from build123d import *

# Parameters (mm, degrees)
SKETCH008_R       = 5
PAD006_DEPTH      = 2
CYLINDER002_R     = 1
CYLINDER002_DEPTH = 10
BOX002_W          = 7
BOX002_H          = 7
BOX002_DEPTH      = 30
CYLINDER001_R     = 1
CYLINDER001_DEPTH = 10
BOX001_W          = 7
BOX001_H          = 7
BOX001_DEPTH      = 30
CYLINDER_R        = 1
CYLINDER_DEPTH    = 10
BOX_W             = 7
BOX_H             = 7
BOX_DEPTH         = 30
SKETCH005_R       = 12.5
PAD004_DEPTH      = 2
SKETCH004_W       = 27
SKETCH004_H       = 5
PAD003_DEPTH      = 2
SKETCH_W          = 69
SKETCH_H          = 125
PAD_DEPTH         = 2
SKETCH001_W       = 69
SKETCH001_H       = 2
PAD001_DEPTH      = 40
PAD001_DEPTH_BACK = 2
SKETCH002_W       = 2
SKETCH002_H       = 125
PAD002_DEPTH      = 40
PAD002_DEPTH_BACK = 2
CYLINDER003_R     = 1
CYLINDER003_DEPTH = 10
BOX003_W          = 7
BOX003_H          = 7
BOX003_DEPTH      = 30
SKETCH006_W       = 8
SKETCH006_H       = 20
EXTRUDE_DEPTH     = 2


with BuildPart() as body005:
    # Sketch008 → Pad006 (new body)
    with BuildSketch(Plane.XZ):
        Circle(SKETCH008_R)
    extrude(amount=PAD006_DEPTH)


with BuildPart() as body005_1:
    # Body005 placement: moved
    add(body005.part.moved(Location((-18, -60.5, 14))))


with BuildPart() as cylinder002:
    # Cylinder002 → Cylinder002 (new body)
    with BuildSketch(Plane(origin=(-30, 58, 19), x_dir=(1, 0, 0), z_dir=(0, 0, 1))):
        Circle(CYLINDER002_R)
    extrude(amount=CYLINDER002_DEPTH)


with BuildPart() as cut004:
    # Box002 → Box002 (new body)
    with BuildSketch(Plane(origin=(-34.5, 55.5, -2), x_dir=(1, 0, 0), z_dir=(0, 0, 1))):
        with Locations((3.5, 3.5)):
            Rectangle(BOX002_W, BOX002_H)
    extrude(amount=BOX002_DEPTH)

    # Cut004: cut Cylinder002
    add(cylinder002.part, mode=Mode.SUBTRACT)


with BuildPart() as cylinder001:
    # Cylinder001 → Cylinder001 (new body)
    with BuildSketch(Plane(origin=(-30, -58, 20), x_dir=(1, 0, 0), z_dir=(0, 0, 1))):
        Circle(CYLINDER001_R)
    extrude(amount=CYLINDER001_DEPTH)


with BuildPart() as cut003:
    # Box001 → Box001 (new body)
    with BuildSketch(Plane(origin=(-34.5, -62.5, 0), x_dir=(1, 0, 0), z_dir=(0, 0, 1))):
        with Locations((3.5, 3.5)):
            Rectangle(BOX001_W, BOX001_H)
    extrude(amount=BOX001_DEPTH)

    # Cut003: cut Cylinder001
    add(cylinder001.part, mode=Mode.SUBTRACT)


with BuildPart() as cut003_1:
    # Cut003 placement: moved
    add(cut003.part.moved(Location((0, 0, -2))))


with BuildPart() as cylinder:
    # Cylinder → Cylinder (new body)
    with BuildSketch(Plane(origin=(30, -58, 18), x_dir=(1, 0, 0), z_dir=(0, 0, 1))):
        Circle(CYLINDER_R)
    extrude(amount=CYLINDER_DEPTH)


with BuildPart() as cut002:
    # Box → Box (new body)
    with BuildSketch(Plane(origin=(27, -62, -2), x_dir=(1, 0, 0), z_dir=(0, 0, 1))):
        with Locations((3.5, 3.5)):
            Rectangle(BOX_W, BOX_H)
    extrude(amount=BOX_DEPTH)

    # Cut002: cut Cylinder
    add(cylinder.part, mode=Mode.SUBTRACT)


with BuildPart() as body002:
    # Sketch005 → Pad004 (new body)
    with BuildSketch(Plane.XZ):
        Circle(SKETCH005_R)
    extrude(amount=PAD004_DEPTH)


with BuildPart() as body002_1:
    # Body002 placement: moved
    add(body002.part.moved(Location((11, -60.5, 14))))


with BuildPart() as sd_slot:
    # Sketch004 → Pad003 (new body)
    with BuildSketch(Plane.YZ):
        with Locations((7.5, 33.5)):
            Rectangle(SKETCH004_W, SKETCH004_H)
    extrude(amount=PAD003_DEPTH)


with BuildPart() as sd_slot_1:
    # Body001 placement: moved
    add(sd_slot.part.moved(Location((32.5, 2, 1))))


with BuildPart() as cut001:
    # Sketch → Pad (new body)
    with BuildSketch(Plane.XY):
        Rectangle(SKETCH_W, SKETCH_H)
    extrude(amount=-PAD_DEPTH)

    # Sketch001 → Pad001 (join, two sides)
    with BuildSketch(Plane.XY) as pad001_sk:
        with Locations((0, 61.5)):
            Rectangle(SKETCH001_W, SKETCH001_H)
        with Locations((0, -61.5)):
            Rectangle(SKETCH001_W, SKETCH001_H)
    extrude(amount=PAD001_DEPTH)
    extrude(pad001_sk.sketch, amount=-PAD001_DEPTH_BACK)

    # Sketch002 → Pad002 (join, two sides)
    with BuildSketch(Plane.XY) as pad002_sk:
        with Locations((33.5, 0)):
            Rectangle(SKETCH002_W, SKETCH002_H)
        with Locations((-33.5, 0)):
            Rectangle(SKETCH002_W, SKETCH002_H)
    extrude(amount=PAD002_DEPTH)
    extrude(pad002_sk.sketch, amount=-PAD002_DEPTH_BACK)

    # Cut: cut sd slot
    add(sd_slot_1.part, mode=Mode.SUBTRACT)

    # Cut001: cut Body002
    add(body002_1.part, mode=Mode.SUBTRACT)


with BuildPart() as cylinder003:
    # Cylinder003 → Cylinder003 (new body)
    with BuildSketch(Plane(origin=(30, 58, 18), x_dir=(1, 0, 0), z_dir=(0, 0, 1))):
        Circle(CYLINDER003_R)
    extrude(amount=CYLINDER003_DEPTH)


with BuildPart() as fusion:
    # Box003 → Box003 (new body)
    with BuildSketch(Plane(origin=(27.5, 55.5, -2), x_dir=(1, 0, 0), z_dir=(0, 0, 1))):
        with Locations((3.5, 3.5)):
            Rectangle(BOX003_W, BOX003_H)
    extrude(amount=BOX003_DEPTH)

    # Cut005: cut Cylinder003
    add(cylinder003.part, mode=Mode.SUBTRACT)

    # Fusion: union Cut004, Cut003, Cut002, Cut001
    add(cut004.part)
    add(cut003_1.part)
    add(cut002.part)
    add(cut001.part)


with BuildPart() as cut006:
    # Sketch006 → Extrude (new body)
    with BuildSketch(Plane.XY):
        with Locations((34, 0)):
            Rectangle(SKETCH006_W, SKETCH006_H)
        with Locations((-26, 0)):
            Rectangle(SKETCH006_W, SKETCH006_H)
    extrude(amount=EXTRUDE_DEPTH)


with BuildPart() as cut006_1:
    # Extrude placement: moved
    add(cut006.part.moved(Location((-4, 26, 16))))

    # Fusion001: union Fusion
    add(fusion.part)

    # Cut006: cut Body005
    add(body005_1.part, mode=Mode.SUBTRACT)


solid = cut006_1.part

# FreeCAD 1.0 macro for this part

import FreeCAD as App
import Part
import Sketcher


def add_polygon(sketch, points):
    """Adds a closed chain of lines whose ends are joined by coincident constraints."""
    first, n = sketch.GeometryCount, len(points)
    for a, b in zip(points, points[1:] + points[:1]):
        sketch.addGeometry(Part.LineSegment(App.Vector(*a, 0), App.Vector(*b, 0)), False)
    for i in range(n):
        sketch.addConstraint(Sketcher.Constraint("Coincident", first + i, 2, first + (i + 1) % n, 1))

doc = App.newDocument("Part")
body = doc.addObject("PartDesign::Body", "Body")

# Sketch on XZ plane
sketch1 = doc.addObject("Sketcher::SketchObject", "Sketch")
body.addObject(sketch1)
sketch1.AttachmentSupport = (doc.XZ_Plane, [""])
sketch1.MapMode = "FlatFace"
sketch1.addGeometry(Part.Circle(App.Vector(0, 0, 0), App.Vector(0, 0, 1), 5), False)
sketch1.addConstraint([
    Sketcher.Constraint("Coincident", 0, 3, -1, 1),
    Sketcher.Constraint("Diameter", 0, 10.0),
])
pad1 = doc.addObject("PartDesign::Pad", "Pad")
body.addObject(pad1)
pad1.Profile = sketch1
pad1.Length = 2
body2 = doc.addObject("PartDesign::Body", "Body001")
doc.recompute()

body.Placement = App.Placement(App.Vector(-18, -60.5, 14), App.Rotation(App.Vector(0, 0, 1), 0))
boolean = doc.addObject("PartDesign::Boolean", "Boolean")
body2.addObject(boolean)
boolean.Type = "Fuse"
boolean.addObjects([body])
body3 = doc.addObject("PartDesign::Body", "Body002")

# Sketch on XY plane
sketch2 = doc.addObject("Sketcher::SketchObject", "Sketch001")
body3.addObject(sketch2)
sketch2.AttachmentSupport = (doc.getObject("XY_Plane002"), [""])
sketch2.MapMode = "FlatFace"
sketch2.AttachmentOffset = App.Placement(App.Vector(0, 0, 19), App.Rotation())
sketch2.addGeometry(Part.Circle(App.Vector(-30, 58, 0), App.Vector(0, 0, 1), 1), False)
sketch2.addConstraint([
    Sketcher.Constraint("Diameter", 0, 2.0),
    Sketcher.Constraint("DistanceX", 0, 3, -1, 1, 30.0),
    Sketcher.Constraint("DistanceY", -1, 1, 0, 3, 58.0),
])
pad2 = doc.addObject("PartDesign::Pad", "Pad001")
body3.addObject(pad2)
pad2.Profile = sketch2
pad2.Length = 10
body4 = doc.addObject("PartDesign::Body", "Body003")

# Sketch on XY plane
sketch3 = doc.addObject("Sketcher::SketchObject", "Sketch002")
body4.addObject(sketch3)
sketch3.AttachmentSupport = (doc.getObject("XY_Plane003"), [""])
sketch3.MapMode = "FlatFace"
sketch3.AttachmentOffset = App.Placement(App.Vector(0, 0, -2), App.Rotation())
add_polygon(sketch3, [(-34, 62), (-34, 56), (-28, 56), (-28, 62)])  # lines 0-3
sketch3.addConstraint([
    Sketcher.Constraint("Vertical", 0),
    Sketcher.Constraint("Horizontal", 1),
    Sketcher.Constraint("Vertical", 2),
    Sketcher.Constraint("Horizontal", 3),
    Sketcher.Constraint("Equal", 3, 0),
    Sketcher.Constraint("DistanceX", 1, 1, 1, 2, 7.0),
    Sketcher.Constraint("DistanceX", 0, 2, -1, 1, 34.5),
    Sketcher.Constraint("DistanceY", -1, 1, 0, 2, 55.5),
])
pad3 = doc.addObject("PartDesign::Pad", "Pad002")
body4.addObject(pad3)
pad3.Profile = sketch3
pad3.Length = 30
doc.recompute()

boolean2 = doc.addObject("PartDesign::Boolean", "Boolean001")
body4.addObject(boolean2)
boolean2.Type = "Cut"
boolean2.addObjects([body3])
body5 = doc.addObject("PartDesign::Body", "Body004")

# Sketch on XY plane
sketch4 = doc.addObject("Sketcher::SketchObject", "Sketch003")
body5.addObject(sketch4)
sketch4.AttachmentSupport = (doc.getObject("XY_Plane004"), [""])
sketch4.MapMode = "FlatFace"
sketch4.AttachmentOffset = App.Placement(App.Vector(0, 0, 20), App.Rotation())
sketch4.addGeometry(Part.Circle(App.Vector(-30, -58, 0), App.Vector(0, 0, 1), 1), False)
sketch4.addConstraint([
    Sketcher.Constraint("Diameter", 0, 2.0),
    Sketcher.Constraint("DistanceX", 0, 3, -1, 1, 30.0),
    Sketcher.Constraint("DistanceY", 0, 3, -1, 1, 58.0),
])
pad4 = doc.addObject("PartDesign::Pad", "Pad003")
body5.addObject(pad4)
pad4.Profile = sketch4
pad4.Length = 10
body6 = doc.addObject("PartDesign::Body", "Body005")

# Sketch on XY plane
sketch5 = doc.addObject("Sketcher::SketchObject", "Sketch004")
body6.addObject(sketch5)
sketch5.AttachmentSupport = (doc.getObject("XY_Plane005"), [""])
sketch5.MapMode = "FlatFace"
add_polygon(sketch5, [(-34, -56), (-34, -62), (-28, -62), (-28, -56)])  # lines 0-3
sketch5.addConstraint([
    Sketcher.Constraint("Vertical", 0),
    Sketcher.Constraint("Horizontal", 1),
    Sketcher.Constraint("Vertical", 2),
    Sketcher.Constraint("Horizontal", 3),
    Sketcher.Constraint("Equal", 3, 0),
    Sketcher.Constraint("DistanceX", 1, 1, 1, 2, 7.0),
    Sketcher.Constraint("DistanceX", 0, 2, -1, 1, 34.5),
    Sketcher.Constraint("DistanceY", 0, 2, -1, 1, 62.5),
])
pad5 = doc.addObject("PartDesign::Pad", "Pad004")
body6.addObject(pad5)
pad5.Profile = sketch5
pad5.Length = 30
doc.recompute()

boolean3 = doc.addObject("PartDesign::Boolean", "Boolean002")
body6.addObject(boolean3)
boolean3.Type = "Cut"
boolean3.addObjects([body5])
body7 = doc.addObject("PartDesign::Body", "Body006")
doc.recompute()

body6.Placement = App.Placement(App.Vector(0, 0, -2), App.Rotation(App.Vector(0, 0, 1), 0))
boolean4 = doc.addObject("PartDesign::Boolean", "Boolean003")
body7.addObject(boolean4)
boolean4.Type = "Fuse"
boolean4.addObjects([body6])
body8 = doc.addObject("PartDesign::Body", "Body007")

# Sketch on XY plane
sketch6 = doc.addObject("Sketcher::SketchObject", "Sketch005")
body8.addObject(sketch6)
sketch6.AttachmentSupport = (doc.getObject("XY_Plane007"), [""])
sketch6.MapMode = "FlatFace"
sketch6.AttachmentOffset = App.Placement(App.Vector(0, 0, 18), App.Rotation())
sketch6.addGeometry(Part.Circle(App.Vector(30, -58, 0), App.Vector(0, 0, 1), 1), False)
sketch6.addConstraint([
    Sketcher.Constraint("Diameter", 0, 2.0),
    Sketcher.Constraint("DistanceX", -1, 1, 0, 3, 30.0),
    Sketcher.Constraint("DistanceY", 0, 3, -1, 1, 58.0),
])
pad6 = doc.addObject("PartDesign::Pad", "Pad005")
body8.addObject(pad6)
pad6.Profile = sketch6
pad6.Length = 10
body9 = doc.addObject("PartDesign::Body", "Body008")

# Sketch on XY plane
sketch7 = doc.addObject("Sketcher::SketchObject", "Sketch006")
body9.addObject(sketch7)
sketch7.AttachmentSupport = (doc.getObject("XY_Plane008"), [""])
sketch7.MapMode = "FlatFace"
sketch7.AttachmentOffset = App.Placement(App.Vector(0, 0, -2), App.Rotation())
add_polygon(sketch7, [(27, -55), (27, -62), (34, -62), (34, -55)])  # lines 0-3
sketch7.addConstraint([
    Sketcher.Constraint("Vertical", 0),
    Sketcher.Constraint("Horizontal", 1),
    Sketcher.Constraint("Vertical", 2),
    Sketcher.Constraint("Horizontal", 3),
    Sketcher.Constraint("Equal", 3, 0),
    Sketcher.Constraint("DistanceX", 1, 1, 1, 2, 7.0),
    Sketcher.Constraint("DistanceX", -1, 1, 0, 2, 27.0),
    Sketcher.Constraint("DistanceY", 0, 2, -1, 1, 62.0),
])
pad7 = doc.addObject("PartDesign::Pad", "Pad006")
body9.addObject(pad7)
pad7.Profile = sketch7
pad7.Length = 30
doc.recompute()

boolean5 = doc.addObject("PartDesign::Boolean", "Boolean004")
body9.addObject(boolean5)
boolean5.Type = "Cut"
boolean5.addObjects([body8])
body10 = doc.addObject("PartDesign::Body", "Body009")

# Sketch on XZ plane
sketch8 = doc.addObject("Sketcher::SketchObject", "Sketch007")
body10.addObject(sketch8)
sketch8.AttachmentSupport = (doc.getObject("XZ_Plane009"), [""])
sketch8.MapMode = "FlatFace"
sketch8.addGeometry(Part.Circle(App.Vector(0, 0, 0), App.Vector(0, 0, 1), 12), False)
sketch8.addConstraint([
    Sketcher.Constraint("Coincident", 0, 3, -1, 1),
    Sketcher.Constraint("Diameter", 0, 25.0),
])
pad8 = doc.addObject("PartDesign::Pad", "Pad007")
body10.addObject(pad8)
pad8.Profile = sketch8
pad8.Length = 2
body11 = doc.addObject("PartDesign::Body", "Body010")
doc.recompute()

body10.Placement = App.Placement(App.Vector(11, -60.5, 14), App.Rotation(App.Vector(0, 0, 1), 0))
boolean6 = doc.addObject("PartDesign::Boolean", "Boolean005")
body11.addObject(boolean6)
boolean6.Type = "Fuse"
boolean6.addObjects([body10])
body12 = doc.addObject("PartDesign::Body", "Body011")

# Sketch on YZ plane
sketch9 = doc.addObject("Sketcher::SketchObject", "Sketch008")
body12.addObject(sketch9)
sketch9.AttachmentSupport = (doc.getObject("YZ_Plane011"), [""])
sketch9.MapMode = "FlatFace"
add_polygon(sketch9, [(-6, 36), (-6, 31), (21, 31), (21, 36)])  # lines 0-3
sketch9.addConstraint([
    Sketcher.Constraint("Vertical", 0),
    Sketcher.Constraint("Horizontal", 1),
    Sketcher.Constraint("Vertical", 2),
    Sketcher.Constraint("Horizontal", 3),
    Sketcher.Constraint("DistanceX", 1, 1, 1, 2, 27.0),
    Sketcher.Constraint("DistanceY", 0, 2, 0, 1, 5.0),
    Sketcher.Constraint("DistanceX", 0, 2, -1, 1, 6.0),
    Sketcher.Constraint("DistanceY", -1, 1, 0, 2, 31.0),
])
pad9 = doc.addObject("PartDesign::Pad", "Pad008")
body12.addObject(pad9)
pad9.Profile = sketch9
pad9.Length = 2
body13 = doc.addObject("PartDesign::Body", "Body012")
doc.recompute()

body12.Placement = App.Placement(App.Vector(32.5, 2, 1), App.Rotation(App.Vector(0, 0, 1), 0))
boolean7 = doc.addObject("PartDesign::Boolean", "Boolean006")
body13.addObject(boolean7)
boolean7.Type = "Fuse"
boolean7.addObjects([body12])
body14 = doc.addObject("PartDesign::Body", "Body013")

# Sketch on XY plane
sketch10 = doc.addObject("Sketcher::SketchObject", "Sketch009")
body14.addObject(sketch10)
sketch10.AttachmentSupport = (doc.getObject("XY_Plane013"), [""])
sketch10.MapMode = "FlatFace"
add_polygon(sketch10, [(-34, 62), (-34, -62), (34, -62), (34, 62)])  # lines 0-3
sketch10.addConstraint([
    Sketcher.Constraint("Vertical", 0),
    Sketcher.Constraint("Horizontal", 1),
    Sketcher.Constraint("Vertical", 2),
    Sketcher.Constraint("Horizontal", 3),
    Sketcher.Constraint("Symmetric", 0, 2, 2, 2, -1, 1),
    Sketcher.Constraint("DistanceX", 1, 1, 1, 2, 69.0),
    Sketcher.Constraint("DistanceY", 0, 2, 0, 1, 125.0),
])
pad10 = doc.addObject("PartDesign::Pad", "Pad009")
body14.addObject(pad10)
pad10.Profile = sketch10
pad10.Length = 2
pad10.Reversed = True

# Sketch on XY plane
sketch11 = doc.addObject("Sketcher::SketchObject", "Sketch010")
body14.addObject(sketch11)
sketch11.AttachmentSupport = (doc.getObject("XY_Plane013"), [""])
sketch11.MapMode = "FlatFace"
add_polygon(sketch11, [(-34.5, 62.5), (-34.5, 60.5), (34.5, 60.5), (34.5, 62.5)])  # lines 0-3
add_polygon(sketch11, [(-34.5, -60.5), (-34.5, -62.5), (34.5, -62.5), (34.5, -60.5)])  # lines 4-7
sketch11.addConstraint([
    Sketcher.Constraint("Vertical", 0),
    Sketcher.Constraint("Horizontal", 1),
    Sketcher.Constraint("Vertical", 2),
    Sketcher.Constraint("Horizontal", 3),
    Sketcher.Constraint("Vertical", 4),
    Sketcher.Constraint("Horizontal", 5),
    Sketcher.Constraint("Vertical", 6),
    Sketcher.Constraint("Horizontal", 7),
    Sketcher.Constraint("Symmetric", 2, 2, 4, 2, -1, 1),
    Sketcher.Constraint("Symmetric", 0, 2, 6, 2, -1, 1),
    Sketcher.Constraint("Vertical", 3, 2, 4, 2),
    Sketcher.Constraint("DistanceX", 1, 1, 1, 2, 69.0),
    Sketcher.Constraint("DistanceY", 0, 2, 0, 1, 2.0),
    Sketcher.Constraint("DistanceY", 4, 2, 0, 2, 123.0),
])
pad11 = doc.addObject("PartDesign::Pad", "Pad010")
body14.addObject(pad11)
pad11.Profile = sketch11
pad11.Type = "TwoLengths"
pad11.Length = 40
pad11.Length2 = 2

# Sketch on XY plane
sketch12 = doc.addObject("Sketcher::SketchObject", "Sketch011")
body14.addObject(sketch12)
sketch12.AttachmentSupport = (doc.getObject("XY_Plane013"), [""])
sketch12.MapMode = "FlatFace"
add_polygon(sketch12, [(32.5, 62.5), (32.5, -62.5), (34.5, -62.5), (34.5, 62.5)])  # lines 0-3
add_polygon(sketch12, [(-34.5, 62.5), (-34.5, -62.5), (-32.5, -62.5), (-32.5, 62.5)])  # lines 4-7
sketch12.addConstraint([
    Sketcher.Constraint("Vertical", 0),
    Sketcher.Constraint("Horizontal", 1),
    Sketcher.Constraint("Vertical", 2),
    Sketcher.Constraint("Horizontal", 3),
    Sketcher.Constraint("Vertical", 4),
    Sketcher.Constraint("Horizontal", 5),
    Sketcher.Constraint("Vertical", 6),
    Sketcher.Constraint("Horizontal", 7),
    Sketcher.Constraint("Symmetric", 2, 2, 4, 2, -1, 1),
    Sketcher.Constraint("Symmetric", 0, 2, 6, 2, -1, 1),
    Sketcher.Constraint("Horizontal", 1, 2, 4, 2),
    Sketcher.Constraint("DistanceX", 1, 1, 1, 2, 2.0),
    Sketcher.Constraint("DistanceY", 0, 2, 0, 1, 125.0),
    Sketcher.Constraint("DistanceX", 4, 2, 0, 2, 67.0),
])
pad12 = doc.addObject("PartDesign::Pad", "Pad011")
body14.addObject(pad12)
pad12.Profile = sketch12
pad12.Type = "TwoLengths"
pad12.Length = 40
pad12.Length2 = 2
doc.recompute()

boolean8 = doc.addObject("PartDesign::Boolean", "Boolean007")
body14.addObject(boolean8)
boolean8.Type = "Cut"
boolean8.addObjects([body13])
doc.recompute()

boolean9 = doc.addObject("PartDesign::Boolean", "Boolean008")
body14.addObject(boolean9)
boolean9.Type = "Cut"
boolean9.addObjects([body11])
body15 = doc.addObject("PartDesign::Body", "Body014")

# Sketch on XY plane
sketch13 = doc.addObject("Sketcher::SketchObject", "Sketch012")
body15.addObject(sketch13)
sketch13.AttachmentSupport = (doc.getObject("XY_Plane014"), [""])
sketch13.MapMode = "FlatFace"
sketch13.AttachmentOffset = App.Placement(App.Vector(0, 0, 18), App.Rotation())
sketch13.addGeometry(Part.Circle(App.Vector(30, 58, 0), App.Vector(0, 0, 1), 1), False)
sketch13.addConstraint([
    Sketcher.Constraint("Diameter", 0, 2.0),
    Sketcher.Constraint("DistanceX", -1, 1, 0, 3, 30.0),
    Sketcher.Constraint("DistanceY", -1, 1, 0, 3, 58.0),
])
pad13 = doc.addObject("PartDesign::Pad", "Pad012")
body15.addObject(pad13)
pad13.Profile = sketch13
pad13.Length = 10
body16 = doc.addObject("PartDesign::Body", "Body015")
body16.AllowCompound = True

# Sketch on XY plane
sketch14 = doc.addObject("Sketcher::SketchObject", "Sketch013")
body16.addObject(sketch14)
sketch14.AttachmentSupport = (doc.getObject("XY_Plane015"), [""])
sketch14.MapMode = "FlatFace"
sketch14.AttachmentOffset = App.Placement(App.Vector(0, 0, -2), App.Rotation())
add_polygon(sketch14, [(28, 62), (28, 56), (34, 56), (34, 62)])  # lines 0-3
sketch14.addConstraint([
    Sketcher.Constraint("Vertical", 0),
    Sketcher.Constraint("Horizontal", 1),
    Sketcher.Constraint("Vertical", 2),
    Sketcher.Constraint("Horizontal", 3),
    Sketcher.Constraint("Equal", 3, 0),
    Sketcher.Constraint("DistanceX", 1, 1, 1, 2, 7.0),
    Sketcher.Constraint("DistanceX", -1, 1, 0, 2, 27.5),
    Sketcher.Constraint("DistanceY", -1, 1, 0, 2, 55.5),
])
pad14 = doc.addObject("PartDesign::Pad", "Pad013")
body16.addObject(pad14)
pad14.Profile = sketch14
pad14.Length = 30
doc.recompute()

boolean10 = doc.addObject("PartDesign::Boolean", "Boolean009")
body16.addObject(boolean10)
boolean10.Type = "Cut"
boolean10.addObjects([body15])
doc.recompute()

boolean11 = doc.addObject("PartDesign::Boolean", "Boolean010")
body16.addObject(boolean11)
boolean11.Type = "Fuse"
boolean11.addObjects([body4])
doc.recompute()

boolean12 = doc.addObject("PartDesign::Boolean", "Boolean011")
body16.addObject(boolean12)
boolean12.Type = "Fuse"
boolean12.addObjects([body7])
doc.recompute()

boolean13 = doc.addObject("PartDesign::Boolean", "Boolean012")
body16.addObject(boolean13)
boolean13.Type = "Fuse"
boolean13.addObjects([body9])
doc.recompute()

boolean14 = doc.addObject("PartDesign::Boolean", "Boolean013")
body16.addObject(boolean14)
boolean14.Type = "Fuse"
boolean14.addObjects([body14])
body17 = doc.addObject("PartDesign::Body", "Body016")
body17.AllowCompound = True

# Sketch on XY plane
sketch15 = doc.addObject("Sketcher::SketchObject", "Sketch014")
body17.addObject(sketch15)
sketch15.AttachmentSupport = (doc.getObject("XY_Plane016"), [""])
sketch15.MapMode = "FlatFace"
add_polygon(sketch15, [(30, 10), (30, -10), (38, -10), (38, 10)])  # lines 0-3
add_polygon(sketch15, [(-30, 10), (-30, -10), (-22, -10), (-22, 10)])  # lines 4-7
sketch15.addConstraint([
    Sketcher.Constraint("Vertical", 0),
    Sketcher.Constraint("Horizontal", 1),
    Sketcher.Constraint("Vertical", 2),
    Sketcher.Constraint("Horizontal", 3),
    Sketcher.Constraint("Vertical", 4),
    Sketcher.Constraint("Horizontal", 5),
    Sketcher.Constraint("Vertical", 6),
    Sketcher.Constraint("Horizontal", 7),
    Sketcher.Constraint("Symmetric", 3, 2, 4, 2, -1, 1),
    Sketcher.Constraint("Horizontal", 1, 2, 4, 2),
    Sketcher.Constraint("Horizontal", 3, 2, 6, 2),
    Sketcher.Constraint("Equal", 3, 5),
    Sketcher.Constraint("DistanceX", 1, 1, 1, 2, 8.0),
    Sketcher.Constraint("DistanceY", 0, 2, 0, 1, 20.0),
    Sketcher.Constraint("DistanceX", -1, 1, 0, 2, 30.0),
])
pad15 = doc.addObject("PartDesign::Pad", "Pad014")
body17.addObject(pad15)
pad15.Profile = sketch15
pad15.Length = 2
body18 = doc.addObject("PartDesign::Body", "Body017")
body18.AllowCompound = True
doc.recompute()

body17.Placement = App.Placement(App.Vector(-4, 26, 16), App.Rotation(App.Vector(0, 0, 1), 0))
boolean15 = doc.addObject("PartDesign::Boolean", "Boolean014")
body18.addObject(boolean15)
boolean15.Type = "Fuse"
boolean15.addObjects([body17])
doc.recompute()

boolean16 = doc.addObject("PartDesign::Boolean", "Boolean015")
body18.addObject(boolean16)
boolean16.Type = "Fuse"
boolean16.addObjects([body16])
doc.recompute()

boolean17 = doc.addObject("PartDesign::Boolean", "Boolean016")
body18.addObject(boolean17)
boolean17.Type = "Cut"
boolean17.addObjects([body2])

doc.recompute()
